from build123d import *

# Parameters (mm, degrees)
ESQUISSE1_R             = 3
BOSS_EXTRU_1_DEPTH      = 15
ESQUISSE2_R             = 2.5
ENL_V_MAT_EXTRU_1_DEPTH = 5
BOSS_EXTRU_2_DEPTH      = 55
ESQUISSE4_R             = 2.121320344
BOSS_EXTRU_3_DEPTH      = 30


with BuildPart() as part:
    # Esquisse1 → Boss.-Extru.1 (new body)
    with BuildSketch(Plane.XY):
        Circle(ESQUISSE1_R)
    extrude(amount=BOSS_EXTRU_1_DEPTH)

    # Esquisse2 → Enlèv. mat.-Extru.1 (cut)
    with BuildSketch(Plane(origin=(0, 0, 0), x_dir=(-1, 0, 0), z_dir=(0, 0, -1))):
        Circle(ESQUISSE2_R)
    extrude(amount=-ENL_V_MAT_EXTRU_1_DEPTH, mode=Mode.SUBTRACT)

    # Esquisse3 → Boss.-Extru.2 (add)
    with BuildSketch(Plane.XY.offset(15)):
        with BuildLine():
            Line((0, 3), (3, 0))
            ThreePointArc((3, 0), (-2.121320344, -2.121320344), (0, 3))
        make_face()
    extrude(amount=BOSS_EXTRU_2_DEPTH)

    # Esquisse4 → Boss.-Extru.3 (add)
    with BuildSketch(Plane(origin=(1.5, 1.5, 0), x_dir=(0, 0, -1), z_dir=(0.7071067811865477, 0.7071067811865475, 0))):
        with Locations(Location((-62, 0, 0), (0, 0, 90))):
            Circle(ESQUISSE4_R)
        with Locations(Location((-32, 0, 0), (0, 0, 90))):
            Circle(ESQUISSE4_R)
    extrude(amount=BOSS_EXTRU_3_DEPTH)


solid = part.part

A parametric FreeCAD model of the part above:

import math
import FreeCAD as App
import Part
import Sketcher

doc = App.newDocument("Part")
body = doc.addObject("PartDesign::Body", "Body")

# Sketch on XY plane
sketch1 = doc.addObject("Sketcher::SketchObject", "Sketch")
body.addObject(sketch1)
sketch1.AttachmentSupport = (doc.XY_Plane, [""])
sketch1.MapMode = "FlatFace"
sketch1.addGeometry(Part.Circle(App.Vector(0, 0, 0), App.Vector(0, 0, 1), 3), False)
sketch1.addConstraint([
    Sketcher.Constraint("Coincident", 0, 3, -1, 1),
    Sketcher.Constraint("Diameter", 0, 6.0),
])
pad1 = doc.addObject("PartDesign::Pad", "Pad")
body.addObject(pad1)
pad1.Profile = sketch1
pad1.Length = 15

# Sketch on XY plane
sketch2 = doc.addObject("Sketcher::SketchObject", "Sketch001")
body.addObject(sketch2)
sketch2.AttachmentSupport = (doc.XY_Plane, [""])
sketch2.MapMode = "FlatFace"
sketch2.addGeometry(Part.Circle(App.Vector(0, 0, 0), App.Vector(0, 0, 1), 2.5), False)
sketch2.addConstraint([
    Sketcher.Constraint("Coincident", 0, 3, -1, 1),
    Sketcher.Constraint("Diameter", 0, 5.0),
])
pocket1 = doc.addObject("PartDesign::Pocket", "Pocket")
body.addObject(pocket1)
pocket1.Profile = sketch2
pocket1.Length = 5
pocket1.Reversed = True

# Sketch on XY plane
sketch3 = doc.addObject("Sketcher::SketchObject", "Sketch002")
body.addObject(sketch3)
sketch3.AttachmentSupport = (doc.XY_Plane, [""])
sketch3.MapMode = "FlatFace"
sketch3.AttachmentOffset = App.Placement(App.Vector(0, 0, 15), App.Rotation())
sketch3.addGeometry([
    Part.LineSegment(App.Vector(3, 0, 0), App.Vector(0, 3, 0)),
    Part.ArcOfCircle(Part.Circle(App.Vector(0, 0, 0), App.Vector(0, 0, 1), 3), math.radians(90), math.radians(360)),
], False)
sketch3.addConstraint([
    Sketcher.Constraint("Coincident", 0, 1, 1, 2),
    Sketcher.Constraint("Coincident", 1, 1, 0, 2),
    Sketcher.Constraint("Coincident", 1, 3, -1, 1),
    Sketcher.Constraint("PointOnObject", 0, 1, -1),
    Sketcher.Constraint("PointOnObject", 1, 1, -2),
    Sketcher.Constraint("Radius", 1, 3.0),
])
pad2 = doc.addObject("PartDesign::Pad", "Pad001")
body.addObject(pad2)
pad2.Profile = sketch3
pad2.Length = 55

# Sketch on an angled plane
sketch4 = doc.addObject("Sketcher::SketchObject", "Sketch003")
body.addObject(sketch4)
sketch4.Placement = App.Placement(App.Vector(1.5, 1.5, 0), App.Rotation(App.Vector(0, 0, -1), App.Vector(-0.707106781, 0.707106781, 0), App.Vector(0.707106781, 0.707106781, 0), "ZXY"))
sketch4.addGeometry([
    Part.Circle(App.Vector(-62, 0, 0), App.Vector(0, 0, 1), 2.12132),
    Part.Circle(App.Vector(-32, 0, 0), App.Vector(0, 0, 1), 2.12132),
], False)
sketch4.addConstraint([
    Sketcher.Constraint("Equal", 0, 1),
    Sketcher.Constraint("PointOnObject", 0, 3, -1),
    Sketcher.Constraint("PointOnObject", 1, 3, -1),
    Sketcher.Constraint("DistanceX", 0, 3, -1, 1, 62.0),
    Sketcher.Constraint("DistanceX", 1, 3, -1, 1, 32.0),
    Sketcher.Constraint("Diameter", 0, 4.242641),
])
pad3 = doc.addObject("PartDesign::Pad", "Pad002")
body.addObject(pad3)
pad3.Profile = sketch4
pad3.Length = 30

doc.recompute()
